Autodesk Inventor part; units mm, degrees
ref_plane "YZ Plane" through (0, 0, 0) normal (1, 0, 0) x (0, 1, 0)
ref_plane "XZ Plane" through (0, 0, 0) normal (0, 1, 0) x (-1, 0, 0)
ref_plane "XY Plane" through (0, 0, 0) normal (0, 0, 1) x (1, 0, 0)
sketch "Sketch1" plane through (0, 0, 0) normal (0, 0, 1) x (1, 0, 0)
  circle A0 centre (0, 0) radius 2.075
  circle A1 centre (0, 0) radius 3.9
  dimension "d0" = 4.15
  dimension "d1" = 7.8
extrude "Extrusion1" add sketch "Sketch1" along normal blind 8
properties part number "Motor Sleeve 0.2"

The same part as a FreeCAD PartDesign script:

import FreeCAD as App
import Part
import Sketcher

V = App.Vector
Q = App.Units.Quantity

doc = App.newDocument("Part")
body = doc.addObject("PartDesign::Body", "Body")

# Sketch on XY plane
sketch1 = body.newObject("Sketcher::SketchObject", "Sketch")
sketch1.AttachmentSupport = (doc.getObject("XY_Plane"), [""])
sketch1.MapMode = "FlatFace"
sketch1.addGeometry([
    Part.Circle(V(0, 0, 0), V(0, 0, 1), 3.9),
    Part.Circle(V(0, 0, 0), V(0, 0, 1), 2.1),
], False)
sketch1.addConstraint([
    Sketcher.Constraint("Coincident", 0, 3, -1, 1),
    Sketcher.Constraint("Coincident", 1, 3, -1, 1),
    Sketcher.Constraint("Diameter", 0, Q("7.8 mm")),
    Sketcher.Constraint("Diameter", 1, Q("4.15 mm")),
])
pad1 = body.newObject("PartDesign::Pad", "Pad")
pad1.Profile = sketch1
pad1.Length = 8

doc.recompute()
